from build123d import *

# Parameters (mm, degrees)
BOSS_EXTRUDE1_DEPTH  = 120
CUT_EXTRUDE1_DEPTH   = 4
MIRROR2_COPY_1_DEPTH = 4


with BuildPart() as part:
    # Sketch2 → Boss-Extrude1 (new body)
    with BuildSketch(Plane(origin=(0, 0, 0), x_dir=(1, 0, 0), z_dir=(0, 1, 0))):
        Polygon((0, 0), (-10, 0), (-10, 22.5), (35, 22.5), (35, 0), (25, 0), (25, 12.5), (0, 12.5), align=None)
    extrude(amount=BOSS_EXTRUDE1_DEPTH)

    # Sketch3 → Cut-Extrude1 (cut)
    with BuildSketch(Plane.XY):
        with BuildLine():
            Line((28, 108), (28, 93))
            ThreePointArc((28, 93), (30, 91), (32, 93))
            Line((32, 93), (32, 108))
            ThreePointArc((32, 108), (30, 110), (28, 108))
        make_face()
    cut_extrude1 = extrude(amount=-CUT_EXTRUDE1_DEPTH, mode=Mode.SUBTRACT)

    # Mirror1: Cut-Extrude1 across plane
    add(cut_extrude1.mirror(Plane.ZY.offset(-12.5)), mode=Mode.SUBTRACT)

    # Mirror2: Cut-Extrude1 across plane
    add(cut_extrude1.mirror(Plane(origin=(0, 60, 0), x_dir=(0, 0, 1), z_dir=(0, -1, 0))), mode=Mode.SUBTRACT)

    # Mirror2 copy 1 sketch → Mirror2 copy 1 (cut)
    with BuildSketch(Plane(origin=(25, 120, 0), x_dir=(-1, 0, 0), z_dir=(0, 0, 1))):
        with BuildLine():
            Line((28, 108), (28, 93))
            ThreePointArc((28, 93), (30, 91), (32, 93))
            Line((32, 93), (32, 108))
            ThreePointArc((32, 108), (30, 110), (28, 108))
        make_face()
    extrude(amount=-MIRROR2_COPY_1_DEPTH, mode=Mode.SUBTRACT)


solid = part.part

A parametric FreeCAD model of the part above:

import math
import FreeCAD as App
import Part
import Sketcher

V = App.Vector

doc = App.newDocument("Part")
body = doc.addObject("PartDesign::Body", "Body")

# Sketch on XZ plane
sketch1 = body.newObject("Sketcher::SketchObject", "Sketch")
sketch1.AttachmentSupport = (doc.getObject("XZ_Plane"), [""])
sketch1.MapMode = "FlatFace"
sketch1.addGeometry([
    Part.LineSegment(V(-10, 0, 0), V(0, 0, 0)),  # 0
    Part.LineSegment(V(0, 0, 0), V(0, -12.5, 0)),  # 1
    Part.LineSegment(V(0, -12.5, 0), V(25, -12.5, 0)),  # 2
    Part.LineSegment(V(25, -12.5, 0), V(25, 0, 0)),  # 3
    Part.LineSegment(V(25, 0, 0), V(35, 0, 0)),  # 4
    Part.LineSegment(V(35, 0, 0), V(35, -22.5, 0)),  # 5
    Part.LineSegment(V(35, -22.5, 0), V(-10, -22.5, 0)),  # 6
    Part.LineSegment(V(-10, -22.5, 0), V(-10, 0, 0)),  # 7
], False)
sketch1.addConstraint([
    Sketcher.Constraint("Coincident", 0, 2, 1, 1),
    Sketcher.Constraint("Coincident", 1, 2, 2, 1),
    Sketcher.Constraint("Coincident", 2, 2, 3, 1),
    Sketcher.Constraint("Coincident", 3, 2, 4, 1),
    Sketcher.Constraint("Coincident", 4, 2, 5, 1),
    Sketcher.Constraint("Coincident", 5, 2, 6, 1),
    Sketcher.Constraint("Coincident", 6, 2, 7, 1),
    Sketcher.Constraint("Coincident", 7, 2, 0, 1),
    Sketcher.Constraint("Horizontal", 0),
    Sketcher.Constraint("Vertical", 1),
    Sketcher.Constraint("Horizontal", 2),
    Sketcher.Constraint("Vertical", 3),
    Sketcher.Constraint("Horizontal", 4),
    Sketcher.Constraint("Vertical", 5),
    Sketcher.Constraint("Horizontal", 6),
    Sketcher.Constraint("Vertical", 7),
    Sketcher.Constraint("Coincident", 0, 2, -1, 1),
    Sketcher.Constraint("PointOnObject", 3, 2, -1),
    Sketcher.Constraint("Equal", 0, 4),
    Sketcher.Constraint("DistanceX", 0, 1, 0, 2, 10.0),
    Sketcher.Constraint("DistanceX", 2, 1, 2, 2, 25.0),
    Sketcher.Constraint("DistanceY", 1, 2, 1, 1, 12.5),
    Sketcher.Constraint("DistanceY", 5, 2, 5, 1, 22.5),
])
pad1 = body.newObject("PartDesign::Pad", "Pad")
pad1.Profile = sketch1
pad1.Length = 120
pad1.Reversed = True

# Sketch on XY plane
sketch2 = body.newObject("Sketcher::SketchObject", "Sketch001")
sketch2.AttachmentSupport = (doc.getObject("XY_Plane"), [""])
sketch2.MapMode = "FlatFace"
sketch2.addGeometry([
    Part.LineSegment(V(28, 108, 0), V(28, 93, 0)),
    Part.ArcOfCircle(Part.Circle(V(30, 93, 0), V(0, 0, 1), 2), math.radians(180), math.radians(360)),
    Part.LineSegment(V(32, 93, 0), V(32, 108, 0)),
    Part.ArcOfCircle(Part.Circle(V(30, 108, 0), V(0, 0, 1), 2), math.radians(0), math.radians(180)),
], False)
sketch2.addConstraint([
    Sketcher.Constraint("Tangent", 0, 2, 1, 1),
    Sketcher.Constraint("Tangent", 1, 2, 2, 1),
    Sketcher.Constraint("Tangent", 2, 2, 3, 1),
    Sketcher.Constraint("Tangent", 3, 2, 0, 1),
    Sketcher.Constraint("Vertical", 0),
    Sketcher.Constraint("Vertical", 2),
    Sketcher.Constraint("Radius", 1, 2.0),
    Sketcher.Constraint("DistanceY", 0, 2, 0, 1, 15.0),
    Sketcher.Constraint("DistanceX", -1, 1, 1, 3, 30.0),
    Sketcher.Constraint("DistanceY", -1, 1, 1, 3, 93.0),
])
pocket1 = body.newObject("PartDesign::Pocket", "Pocket")
pocket1.Profile = sketch2
pocket1.Length = 4
doc.recompute()

datumplane = body.newObject("PartDesign::Plane", "DatumPlane")
datumplane.AttachmentSupport = (doc.getObject("YZ_Plane"), [""])
datumplane.MapMode = "FlatFace"
datumplane.AttachmentOffset = App.Placement(V(0, 0, 12.5), App.Rotation())
mirrored = body.newObject("PartDesign::Mirrored", "Mirrored")
mirrored.Originals = [pocket1]
mirrored.MirrorPlane = (datumplane, [""])
body.Tip = mirrored
doc.recompute()

datumplane2 = body.newObject("PartDesign::Plane", "DatumPlane001")
datumplane2.AttachmentSupport = (doc.getObject("XZ_Plane"), [""])
datumplane2.MapMode = "FlatFace"
datumplane2.AttachmentOffset = App.Placement(V(0, 0, -60), App.Rotation())
mirrored2 = body.newObject("PartDesign::Mirrored", "Mirrored001")
mirrored2.Originals = [pocket1]
mirrored2.MirrorPlane = (datumplane2, [""])
body.Tip = mirrored2

# Sketch on XY plane
sketch3 = body.newObject("Sketcher::SketchObject", "Sketch002")
sketch3.AttachmentSupport = (doc.getObject("XY_Plane"), [""])
sketch3.MapMode = "FlatFace"
sketch3.addGeometry([
    Part.LineSegment(V(-3, 12, 0), V(-3, 27, 0)),
    Part.ArcOfCircle(Part.Circle(V(-5, 27, 0), V(0, 0, 1), 2), math.radians(0), math.radians(180)),
    Part.LineSegment(V(-7, 27, 0), V(-7, 12, 0)),
    Part.ArcOfCircle(Part.Circle(V(-5, 12, 0), V(0, 0, 1), 2), math.radians(180), math.radians(360)),
], False)
sketch3.addConstraint([
    Sketcher.Constraint("Tangent", 0, 2, 1, 1),
    Sketcher.Constraint("Tangent", 1, 2, 2, 1),
    Sketcher.Constraint("Tangent", 2, 2, 3, 1),
    Sketcher.Constraint("Tangent", 3, 2, 0, 1),
    Sketcher.Constraint("Vertical", 0),
    Sketcher.Constraint("Vertical", 2),
    Sketcher.Constraint("Radius", 1, 2.0),
    Sketcher.Constraint("DistanceY", 0, 1, 0, 2, 15.0),
    Sketcher.Constraint("DistanceX", 1, 3, -1, 1, 5.0),
    Sketcher.Constraint("DistanceY", -1, 1, 1, 3, 27.0),
])
pocket2 = body.newObject("PartDesign::Pocket", "Pocket001")
pocket2.Profile = sketch3
pocket2.Length = 4

doc.recompute()
